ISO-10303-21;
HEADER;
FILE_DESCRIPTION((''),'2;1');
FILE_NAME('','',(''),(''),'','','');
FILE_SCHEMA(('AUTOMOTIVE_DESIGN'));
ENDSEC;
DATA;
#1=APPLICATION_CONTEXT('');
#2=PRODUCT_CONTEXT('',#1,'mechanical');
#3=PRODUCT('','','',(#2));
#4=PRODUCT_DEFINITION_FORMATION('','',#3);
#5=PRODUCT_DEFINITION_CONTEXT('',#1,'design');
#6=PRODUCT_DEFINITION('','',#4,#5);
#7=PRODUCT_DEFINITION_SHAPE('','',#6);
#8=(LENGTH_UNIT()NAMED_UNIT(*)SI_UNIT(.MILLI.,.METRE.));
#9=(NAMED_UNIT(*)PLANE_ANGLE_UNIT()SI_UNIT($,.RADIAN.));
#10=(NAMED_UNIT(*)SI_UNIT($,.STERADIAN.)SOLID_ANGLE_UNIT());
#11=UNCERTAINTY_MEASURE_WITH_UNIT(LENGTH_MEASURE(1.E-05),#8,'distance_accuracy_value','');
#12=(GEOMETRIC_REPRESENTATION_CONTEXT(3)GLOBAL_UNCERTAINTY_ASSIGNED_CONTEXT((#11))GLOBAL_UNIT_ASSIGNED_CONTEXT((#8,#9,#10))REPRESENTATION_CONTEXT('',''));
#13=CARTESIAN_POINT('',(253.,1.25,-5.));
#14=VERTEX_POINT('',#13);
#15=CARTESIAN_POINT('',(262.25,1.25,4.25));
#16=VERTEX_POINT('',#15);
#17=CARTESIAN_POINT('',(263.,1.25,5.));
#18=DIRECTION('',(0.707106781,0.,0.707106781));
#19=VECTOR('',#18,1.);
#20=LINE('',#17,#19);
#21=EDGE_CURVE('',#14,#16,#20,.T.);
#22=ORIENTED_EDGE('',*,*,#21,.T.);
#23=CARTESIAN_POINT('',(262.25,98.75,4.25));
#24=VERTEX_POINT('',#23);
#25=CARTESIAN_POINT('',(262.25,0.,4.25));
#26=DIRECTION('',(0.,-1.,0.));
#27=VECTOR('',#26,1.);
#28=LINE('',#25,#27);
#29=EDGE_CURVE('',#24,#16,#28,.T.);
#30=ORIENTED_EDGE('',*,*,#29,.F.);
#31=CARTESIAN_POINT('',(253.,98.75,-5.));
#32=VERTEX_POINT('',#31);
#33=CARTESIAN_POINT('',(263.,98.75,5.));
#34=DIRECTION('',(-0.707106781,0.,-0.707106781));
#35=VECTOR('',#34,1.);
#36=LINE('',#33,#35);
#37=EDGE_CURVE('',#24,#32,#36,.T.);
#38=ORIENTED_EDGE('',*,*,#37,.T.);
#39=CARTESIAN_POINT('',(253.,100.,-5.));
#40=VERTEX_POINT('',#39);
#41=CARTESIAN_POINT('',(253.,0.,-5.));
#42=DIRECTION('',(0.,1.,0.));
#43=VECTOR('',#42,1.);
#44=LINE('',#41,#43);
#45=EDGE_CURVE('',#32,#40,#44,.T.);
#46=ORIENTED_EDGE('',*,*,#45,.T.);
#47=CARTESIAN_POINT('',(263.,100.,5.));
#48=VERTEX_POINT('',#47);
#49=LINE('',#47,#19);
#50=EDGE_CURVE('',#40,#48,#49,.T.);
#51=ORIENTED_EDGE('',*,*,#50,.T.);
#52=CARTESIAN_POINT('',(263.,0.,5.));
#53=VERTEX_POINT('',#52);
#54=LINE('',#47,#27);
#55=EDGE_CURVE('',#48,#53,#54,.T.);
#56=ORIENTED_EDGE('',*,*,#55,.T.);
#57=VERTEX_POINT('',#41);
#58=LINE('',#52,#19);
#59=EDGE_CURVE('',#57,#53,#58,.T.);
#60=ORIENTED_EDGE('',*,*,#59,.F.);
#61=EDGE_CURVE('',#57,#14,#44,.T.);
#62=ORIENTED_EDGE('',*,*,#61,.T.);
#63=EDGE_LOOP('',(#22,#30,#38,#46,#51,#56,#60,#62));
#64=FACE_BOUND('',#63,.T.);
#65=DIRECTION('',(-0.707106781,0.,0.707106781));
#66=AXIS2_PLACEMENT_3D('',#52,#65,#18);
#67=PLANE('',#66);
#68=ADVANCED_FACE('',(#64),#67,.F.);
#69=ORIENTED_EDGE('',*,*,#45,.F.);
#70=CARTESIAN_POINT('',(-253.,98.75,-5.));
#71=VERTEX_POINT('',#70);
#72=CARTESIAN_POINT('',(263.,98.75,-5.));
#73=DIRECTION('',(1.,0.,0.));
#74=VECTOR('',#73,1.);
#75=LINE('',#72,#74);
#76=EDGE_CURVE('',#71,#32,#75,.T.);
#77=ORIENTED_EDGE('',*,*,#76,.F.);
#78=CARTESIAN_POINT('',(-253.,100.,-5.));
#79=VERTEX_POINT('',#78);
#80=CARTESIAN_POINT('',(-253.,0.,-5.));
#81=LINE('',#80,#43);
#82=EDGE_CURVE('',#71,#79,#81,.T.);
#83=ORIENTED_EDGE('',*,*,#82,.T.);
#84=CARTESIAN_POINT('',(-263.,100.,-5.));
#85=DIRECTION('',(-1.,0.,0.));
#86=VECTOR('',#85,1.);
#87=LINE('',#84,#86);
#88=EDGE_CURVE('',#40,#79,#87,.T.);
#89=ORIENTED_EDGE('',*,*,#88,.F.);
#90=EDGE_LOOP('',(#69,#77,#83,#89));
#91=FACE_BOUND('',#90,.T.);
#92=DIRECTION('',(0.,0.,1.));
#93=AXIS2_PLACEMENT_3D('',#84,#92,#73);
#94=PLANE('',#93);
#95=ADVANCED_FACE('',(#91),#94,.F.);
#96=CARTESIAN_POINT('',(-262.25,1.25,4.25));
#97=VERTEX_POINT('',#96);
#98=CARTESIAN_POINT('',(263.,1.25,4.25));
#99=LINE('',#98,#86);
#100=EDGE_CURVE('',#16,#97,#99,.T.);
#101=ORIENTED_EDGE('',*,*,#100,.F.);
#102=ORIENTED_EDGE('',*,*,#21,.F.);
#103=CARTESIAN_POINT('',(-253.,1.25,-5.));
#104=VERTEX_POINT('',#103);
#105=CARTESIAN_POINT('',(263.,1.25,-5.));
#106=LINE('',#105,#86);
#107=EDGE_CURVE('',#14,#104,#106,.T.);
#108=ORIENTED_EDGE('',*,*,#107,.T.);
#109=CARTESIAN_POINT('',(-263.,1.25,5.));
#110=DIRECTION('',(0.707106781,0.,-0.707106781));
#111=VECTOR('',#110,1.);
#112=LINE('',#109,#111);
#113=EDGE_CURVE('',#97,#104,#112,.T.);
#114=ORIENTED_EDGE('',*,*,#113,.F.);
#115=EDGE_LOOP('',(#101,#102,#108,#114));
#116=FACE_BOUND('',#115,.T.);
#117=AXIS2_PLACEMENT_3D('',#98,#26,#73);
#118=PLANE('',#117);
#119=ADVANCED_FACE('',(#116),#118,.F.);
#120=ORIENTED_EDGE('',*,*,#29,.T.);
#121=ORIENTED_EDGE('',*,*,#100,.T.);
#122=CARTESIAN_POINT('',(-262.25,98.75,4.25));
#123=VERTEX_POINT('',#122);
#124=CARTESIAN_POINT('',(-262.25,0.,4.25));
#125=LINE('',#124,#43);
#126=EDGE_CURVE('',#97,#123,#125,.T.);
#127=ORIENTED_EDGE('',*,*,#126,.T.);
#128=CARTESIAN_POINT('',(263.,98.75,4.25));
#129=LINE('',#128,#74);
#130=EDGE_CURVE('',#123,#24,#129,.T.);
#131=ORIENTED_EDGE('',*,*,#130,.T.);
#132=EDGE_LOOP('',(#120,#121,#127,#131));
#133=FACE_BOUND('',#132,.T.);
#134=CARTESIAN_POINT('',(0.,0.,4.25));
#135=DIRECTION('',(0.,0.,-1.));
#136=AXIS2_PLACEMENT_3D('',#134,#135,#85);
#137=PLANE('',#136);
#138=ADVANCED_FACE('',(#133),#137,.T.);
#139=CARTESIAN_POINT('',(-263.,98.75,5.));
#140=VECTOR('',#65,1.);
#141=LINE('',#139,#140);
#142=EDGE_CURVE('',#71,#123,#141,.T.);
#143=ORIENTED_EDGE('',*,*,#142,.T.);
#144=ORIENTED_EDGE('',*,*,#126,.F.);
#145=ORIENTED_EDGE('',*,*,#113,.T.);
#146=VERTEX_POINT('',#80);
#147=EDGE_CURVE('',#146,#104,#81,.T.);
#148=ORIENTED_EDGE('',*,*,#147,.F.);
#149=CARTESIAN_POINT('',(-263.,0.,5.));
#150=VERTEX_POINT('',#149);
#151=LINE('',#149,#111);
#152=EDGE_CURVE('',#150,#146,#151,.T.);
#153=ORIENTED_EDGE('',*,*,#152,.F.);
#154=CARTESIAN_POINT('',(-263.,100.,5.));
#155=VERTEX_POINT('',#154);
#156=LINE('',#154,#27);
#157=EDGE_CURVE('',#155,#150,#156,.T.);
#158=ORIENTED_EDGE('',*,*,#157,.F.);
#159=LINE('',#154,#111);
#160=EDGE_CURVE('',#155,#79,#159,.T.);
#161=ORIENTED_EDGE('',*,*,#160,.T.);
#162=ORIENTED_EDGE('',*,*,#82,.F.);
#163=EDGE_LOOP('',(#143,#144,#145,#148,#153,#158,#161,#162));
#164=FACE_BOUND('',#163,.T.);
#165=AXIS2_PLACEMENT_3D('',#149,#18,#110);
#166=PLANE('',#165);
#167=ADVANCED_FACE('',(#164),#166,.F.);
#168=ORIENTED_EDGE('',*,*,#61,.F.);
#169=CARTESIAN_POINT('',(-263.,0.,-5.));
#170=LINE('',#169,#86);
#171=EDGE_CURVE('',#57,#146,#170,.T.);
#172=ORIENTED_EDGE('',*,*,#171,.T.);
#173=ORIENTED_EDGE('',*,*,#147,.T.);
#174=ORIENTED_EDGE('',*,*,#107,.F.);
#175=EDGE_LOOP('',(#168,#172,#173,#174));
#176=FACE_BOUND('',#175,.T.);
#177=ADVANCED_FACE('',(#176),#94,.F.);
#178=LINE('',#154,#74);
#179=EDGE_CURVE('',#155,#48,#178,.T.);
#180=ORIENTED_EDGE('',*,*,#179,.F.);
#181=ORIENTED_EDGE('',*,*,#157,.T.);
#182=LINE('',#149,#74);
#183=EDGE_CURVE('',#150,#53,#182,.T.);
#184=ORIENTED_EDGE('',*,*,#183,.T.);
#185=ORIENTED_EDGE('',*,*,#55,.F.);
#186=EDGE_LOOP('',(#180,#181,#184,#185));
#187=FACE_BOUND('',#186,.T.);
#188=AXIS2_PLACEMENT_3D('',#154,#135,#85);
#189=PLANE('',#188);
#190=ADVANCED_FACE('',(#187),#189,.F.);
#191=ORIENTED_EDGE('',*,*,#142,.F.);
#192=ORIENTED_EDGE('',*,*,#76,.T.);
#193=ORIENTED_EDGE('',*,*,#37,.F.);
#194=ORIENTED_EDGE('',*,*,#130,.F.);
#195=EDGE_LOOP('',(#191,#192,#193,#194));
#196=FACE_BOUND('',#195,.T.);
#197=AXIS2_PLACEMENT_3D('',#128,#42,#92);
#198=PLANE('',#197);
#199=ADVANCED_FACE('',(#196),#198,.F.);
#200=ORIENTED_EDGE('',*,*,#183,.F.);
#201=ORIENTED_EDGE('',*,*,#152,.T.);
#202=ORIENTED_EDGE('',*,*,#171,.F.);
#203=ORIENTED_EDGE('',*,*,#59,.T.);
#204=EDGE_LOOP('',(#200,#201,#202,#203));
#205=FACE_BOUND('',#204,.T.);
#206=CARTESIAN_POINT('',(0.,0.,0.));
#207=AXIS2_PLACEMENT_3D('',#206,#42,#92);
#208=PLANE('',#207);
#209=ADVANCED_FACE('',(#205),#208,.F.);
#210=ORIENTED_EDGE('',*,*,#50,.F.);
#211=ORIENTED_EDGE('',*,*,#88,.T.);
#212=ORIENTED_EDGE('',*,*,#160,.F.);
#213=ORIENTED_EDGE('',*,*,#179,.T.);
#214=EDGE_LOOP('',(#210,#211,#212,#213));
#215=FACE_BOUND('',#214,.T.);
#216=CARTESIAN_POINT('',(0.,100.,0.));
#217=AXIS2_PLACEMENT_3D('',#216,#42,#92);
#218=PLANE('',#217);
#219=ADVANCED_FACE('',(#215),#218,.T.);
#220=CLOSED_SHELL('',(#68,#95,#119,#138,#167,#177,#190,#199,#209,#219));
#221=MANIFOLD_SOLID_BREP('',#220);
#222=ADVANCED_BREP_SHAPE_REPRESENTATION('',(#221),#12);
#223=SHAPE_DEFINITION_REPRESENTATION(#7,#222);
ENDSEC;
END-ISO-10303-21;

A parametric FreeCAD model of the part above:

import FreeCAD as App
import Part
import Sketcher
from FreeCAD import Vector
Q = App.Units.Quantity

doc = App.newDocument("Part")
body = doc.addObject("PartDesign::Body", "Body")

# Sketch on XZ plane
sketch1 = body.newObject("Sketcher::SketchObject", "Sketch")
sketch1.AttachmentSupport = (doc.getObject("XZ_Plane"), [""])
sketch1.MapMode = "FlatFace"
sketch1.addGeometry(Part.LineSegment(Vector(-263, -5, 0), Vector(-263, 5, 0)), False)
sketch1.addGeometry(Part.LineSegment(Vector(-263, 5, 0), Vector(263, 5, 0)), False)
sketch1.addGeometry(Part.LineSegment(Vector(263, 5, 0), Vector(263, -5, 0)), False)
sketch1.addGeometry(Part.LineSegment(Vector(263, -5, 0), Vector(-263, -5, 0)), False)
sketch1.addConstraint(Sketcher.Constraint("Coincident", 0, 2, 1, 1))
sketch1.addConstraint(Sketcher.Constraint("Coincident", 1, 2, 2, 1))
sketch1.addConstraint(Sketcher.Constraint("Coincident", 2, 2, 3, 1))
sketch1.addConstraint(Sketcher.Constraint("Coincident", 3, 2, 0, 1))
sketch1.addConstraint(Sketcher.Constraint("Vertical", 0))
sketch1.addConstraint(Sketcher.Constraint("Horizontal", 1))
sketch1.addConstraint(Sketcher.Constraint("Vertical", 2))
sketch1.addConstraint(Sketcher.Constraint("Horizontal", 3))
sketch1.addConstraint(Sketcher.Constraint("Symmetric", 0, 2, 2, 2, -1, 1))
sketch1.addConstraint(Sketcher.Constraint("DistanceX", 1, 1, 1, 2, Q("526 mm")))
sketch1.addConstraint(Sketcher.Constraint("DistanceY", 0, 1, 0, 2, Q("10 mm")))
pad1 = body.newObject("PartDesign::Pad", "Pad")
pad1.Profile = sketch1
pad1.Length = 100
pad1.Reversed = True

# Sketch on XZ plane
sketch2 = body.newObject("Sketcher::SketchObject", "Sketch001")
sketch2.AttachmentSupport = (doc.getObject("XZ_Plane"), [""])
sketch2.MapMode = "FlatFace"
sketch2.AttachmentOffset = App.Placement(Vector(0, 0, -100), App.Rotation())
sketch2.addGeometry(Part.LineSegment(Vector(-263, 5, 0), Vector(-253, -5, 0)), False)
sketch2.addGeometry(Part.LineSegment(Vector(-253, -5, 0), Vector(-263, -5, 0)), False)
sketch2.addGeometry(Part.LineSegment(Vector(-263, -5, 0), Vector(-263, 5, 0)), False)
sketch2.addGeometry(Part.LineSegment(Vector(263, -5, 0), Vector(253, -5, 0)), False)
sketch2.addGeometry(Part.LineSegment(Vector(253, -5, 0), Vector(263, 5, 0)), False)
sketch2.addGeometry(Part.LineSegment(Vector(263, 5, 0), Vector(263, -5, 0)), False)
sketch2.addConstraint(Sketcher.Constraint("Coincident", 0, 2, 1, 1))
sketch2.addConstraint(Sketcher.Constraint("Coincident", 1, 2, 2, 1))
sketch2.addConstraint(Sketcher.Constraint("Coincident", 2, 2, 0, 1))
sketch2.addConstraint(Sketcher.Constraint("Coincident", 3, 2, 4, 1))
sketch2.addConstraint(Sketcher.Constraint("Coincident", 4, 2, 5, 1))
sketch2.addConstraint(Sketcher.Constraint("Coincident", 5, 2, 3, 1))
sketch2.addConstraint(Sketcher.Constraint("Horizontal", 1))
sketch2.addConstraint(Sketcher.Constraint("Vertical", 2))
sketch2.addConstraint(Sketcher.Constraint("Horizontal", 3))
sketch2.addConstraint(Sketcher.Constraint("Vertical", 5))
sketch2.addConstraint(Sketcher.Constraint("Symmetric", 1, 2, 4, 2, -1, 1))
sketch2.addConstraint(Sketcher.Constraint("Symmetric", 0, 2, 3, 2, -2))
sketch2.addConstraint(Sketcher.Constraint("Perpendicular", 0, 4))
sketch2.addConstraint(Sketcher.Constraint("Horizontal", 2, 2, 4, 2))
sketch2.addConstraint(Sketcher.Constraint("DistanceX", 1, 2, 1, 1, Q("10 mm")))
sketch2.addConstraint(Sketcher.Constraint("DistanceX", 0, 2, -1, 1, Q("253 mm")))
pocket1 = body.newObject("PartDesign::Pocket", "Pocket")
pocket1.Profile = sketch2
pocket1.Length = 100
pocket1.Reversed = True

# Sketch on XY plane
sketch3 = body.newObject("Sketcher::SketchObject", "Sketch002")
sketch3.AttachmentSupport = (doc.getObject("XY_Plane"), [""])
sketch3.MapMode = "FlatFace"
sketch3.AttachmentOffset = App.Placement(Vector(0, 0, -5), App.Rotation())
sketch3.addGeometry(Part.LineSegment(Vector(263, 99, 0), Vector(263, 1, 0)), False)
sketch3.addGeometry(Part.LineSegment(Vector(263, 1, 0), Vector(-263, 1, 0)), False)
sketch3.addGeometry(Part.LineSegment(Vector(-263, 1, 0), Vector(-263, 99, 0)), False)
sketch3.addGeometry(Part.LineSegment(Vector(-263, 99, 0), Vector(263, 99, 0)), False)
sketch3.addConstraint(Sketcher.Constraint("Coincident", 0, 2, 1, 1))
sketch3.addConstraint(Sketcher.Constraint("Coincident", 1, 2, 2, 1))
sketch3.addConstraint(Sketcher.Constraint("Coincident", 2, 2, 3, 1))
sketch3.addConstraint(Sketcher.Constraint("Coincident", 3, 2, 0, 1))
sketch3.addConstraint(Sketcher.Constraint("Vertical", 0))
sketch3.addConstraint(Sketcher.Constraint("Horizontal", 1))
sketch3.addConstraint(Sketcher.Constraint("Vertical", 2))
sketch3.addConstraint(Sketcher.Constraint("Horizontal", 3))
sketch3.addConstraint(Sketcher.Constraint("DistanceX", 1, 2, 1, 1, Q("526 mm")))
sketch3.addConstraint(Sketcher.Constraint("DistanceY", 0, 2, 0, 1, Q("97.5 mm")))
sketch3.addConstraint(Sketcher.Constraint("DistanceX", -1, 1, 0, 2, Q("263 mm")))
sketch3.addConstraint(Sketcher.Constraint("DistanceY", -1, 1, 0, 2, Q("1.25 mm")))
pocket2 = body.newObject("PartDesign::Pocket", "Pocket001")
pocket2.Profile = sketch3
pocket2.Length = 9.25
pocket2.Reversed = True

doc.recompute()
